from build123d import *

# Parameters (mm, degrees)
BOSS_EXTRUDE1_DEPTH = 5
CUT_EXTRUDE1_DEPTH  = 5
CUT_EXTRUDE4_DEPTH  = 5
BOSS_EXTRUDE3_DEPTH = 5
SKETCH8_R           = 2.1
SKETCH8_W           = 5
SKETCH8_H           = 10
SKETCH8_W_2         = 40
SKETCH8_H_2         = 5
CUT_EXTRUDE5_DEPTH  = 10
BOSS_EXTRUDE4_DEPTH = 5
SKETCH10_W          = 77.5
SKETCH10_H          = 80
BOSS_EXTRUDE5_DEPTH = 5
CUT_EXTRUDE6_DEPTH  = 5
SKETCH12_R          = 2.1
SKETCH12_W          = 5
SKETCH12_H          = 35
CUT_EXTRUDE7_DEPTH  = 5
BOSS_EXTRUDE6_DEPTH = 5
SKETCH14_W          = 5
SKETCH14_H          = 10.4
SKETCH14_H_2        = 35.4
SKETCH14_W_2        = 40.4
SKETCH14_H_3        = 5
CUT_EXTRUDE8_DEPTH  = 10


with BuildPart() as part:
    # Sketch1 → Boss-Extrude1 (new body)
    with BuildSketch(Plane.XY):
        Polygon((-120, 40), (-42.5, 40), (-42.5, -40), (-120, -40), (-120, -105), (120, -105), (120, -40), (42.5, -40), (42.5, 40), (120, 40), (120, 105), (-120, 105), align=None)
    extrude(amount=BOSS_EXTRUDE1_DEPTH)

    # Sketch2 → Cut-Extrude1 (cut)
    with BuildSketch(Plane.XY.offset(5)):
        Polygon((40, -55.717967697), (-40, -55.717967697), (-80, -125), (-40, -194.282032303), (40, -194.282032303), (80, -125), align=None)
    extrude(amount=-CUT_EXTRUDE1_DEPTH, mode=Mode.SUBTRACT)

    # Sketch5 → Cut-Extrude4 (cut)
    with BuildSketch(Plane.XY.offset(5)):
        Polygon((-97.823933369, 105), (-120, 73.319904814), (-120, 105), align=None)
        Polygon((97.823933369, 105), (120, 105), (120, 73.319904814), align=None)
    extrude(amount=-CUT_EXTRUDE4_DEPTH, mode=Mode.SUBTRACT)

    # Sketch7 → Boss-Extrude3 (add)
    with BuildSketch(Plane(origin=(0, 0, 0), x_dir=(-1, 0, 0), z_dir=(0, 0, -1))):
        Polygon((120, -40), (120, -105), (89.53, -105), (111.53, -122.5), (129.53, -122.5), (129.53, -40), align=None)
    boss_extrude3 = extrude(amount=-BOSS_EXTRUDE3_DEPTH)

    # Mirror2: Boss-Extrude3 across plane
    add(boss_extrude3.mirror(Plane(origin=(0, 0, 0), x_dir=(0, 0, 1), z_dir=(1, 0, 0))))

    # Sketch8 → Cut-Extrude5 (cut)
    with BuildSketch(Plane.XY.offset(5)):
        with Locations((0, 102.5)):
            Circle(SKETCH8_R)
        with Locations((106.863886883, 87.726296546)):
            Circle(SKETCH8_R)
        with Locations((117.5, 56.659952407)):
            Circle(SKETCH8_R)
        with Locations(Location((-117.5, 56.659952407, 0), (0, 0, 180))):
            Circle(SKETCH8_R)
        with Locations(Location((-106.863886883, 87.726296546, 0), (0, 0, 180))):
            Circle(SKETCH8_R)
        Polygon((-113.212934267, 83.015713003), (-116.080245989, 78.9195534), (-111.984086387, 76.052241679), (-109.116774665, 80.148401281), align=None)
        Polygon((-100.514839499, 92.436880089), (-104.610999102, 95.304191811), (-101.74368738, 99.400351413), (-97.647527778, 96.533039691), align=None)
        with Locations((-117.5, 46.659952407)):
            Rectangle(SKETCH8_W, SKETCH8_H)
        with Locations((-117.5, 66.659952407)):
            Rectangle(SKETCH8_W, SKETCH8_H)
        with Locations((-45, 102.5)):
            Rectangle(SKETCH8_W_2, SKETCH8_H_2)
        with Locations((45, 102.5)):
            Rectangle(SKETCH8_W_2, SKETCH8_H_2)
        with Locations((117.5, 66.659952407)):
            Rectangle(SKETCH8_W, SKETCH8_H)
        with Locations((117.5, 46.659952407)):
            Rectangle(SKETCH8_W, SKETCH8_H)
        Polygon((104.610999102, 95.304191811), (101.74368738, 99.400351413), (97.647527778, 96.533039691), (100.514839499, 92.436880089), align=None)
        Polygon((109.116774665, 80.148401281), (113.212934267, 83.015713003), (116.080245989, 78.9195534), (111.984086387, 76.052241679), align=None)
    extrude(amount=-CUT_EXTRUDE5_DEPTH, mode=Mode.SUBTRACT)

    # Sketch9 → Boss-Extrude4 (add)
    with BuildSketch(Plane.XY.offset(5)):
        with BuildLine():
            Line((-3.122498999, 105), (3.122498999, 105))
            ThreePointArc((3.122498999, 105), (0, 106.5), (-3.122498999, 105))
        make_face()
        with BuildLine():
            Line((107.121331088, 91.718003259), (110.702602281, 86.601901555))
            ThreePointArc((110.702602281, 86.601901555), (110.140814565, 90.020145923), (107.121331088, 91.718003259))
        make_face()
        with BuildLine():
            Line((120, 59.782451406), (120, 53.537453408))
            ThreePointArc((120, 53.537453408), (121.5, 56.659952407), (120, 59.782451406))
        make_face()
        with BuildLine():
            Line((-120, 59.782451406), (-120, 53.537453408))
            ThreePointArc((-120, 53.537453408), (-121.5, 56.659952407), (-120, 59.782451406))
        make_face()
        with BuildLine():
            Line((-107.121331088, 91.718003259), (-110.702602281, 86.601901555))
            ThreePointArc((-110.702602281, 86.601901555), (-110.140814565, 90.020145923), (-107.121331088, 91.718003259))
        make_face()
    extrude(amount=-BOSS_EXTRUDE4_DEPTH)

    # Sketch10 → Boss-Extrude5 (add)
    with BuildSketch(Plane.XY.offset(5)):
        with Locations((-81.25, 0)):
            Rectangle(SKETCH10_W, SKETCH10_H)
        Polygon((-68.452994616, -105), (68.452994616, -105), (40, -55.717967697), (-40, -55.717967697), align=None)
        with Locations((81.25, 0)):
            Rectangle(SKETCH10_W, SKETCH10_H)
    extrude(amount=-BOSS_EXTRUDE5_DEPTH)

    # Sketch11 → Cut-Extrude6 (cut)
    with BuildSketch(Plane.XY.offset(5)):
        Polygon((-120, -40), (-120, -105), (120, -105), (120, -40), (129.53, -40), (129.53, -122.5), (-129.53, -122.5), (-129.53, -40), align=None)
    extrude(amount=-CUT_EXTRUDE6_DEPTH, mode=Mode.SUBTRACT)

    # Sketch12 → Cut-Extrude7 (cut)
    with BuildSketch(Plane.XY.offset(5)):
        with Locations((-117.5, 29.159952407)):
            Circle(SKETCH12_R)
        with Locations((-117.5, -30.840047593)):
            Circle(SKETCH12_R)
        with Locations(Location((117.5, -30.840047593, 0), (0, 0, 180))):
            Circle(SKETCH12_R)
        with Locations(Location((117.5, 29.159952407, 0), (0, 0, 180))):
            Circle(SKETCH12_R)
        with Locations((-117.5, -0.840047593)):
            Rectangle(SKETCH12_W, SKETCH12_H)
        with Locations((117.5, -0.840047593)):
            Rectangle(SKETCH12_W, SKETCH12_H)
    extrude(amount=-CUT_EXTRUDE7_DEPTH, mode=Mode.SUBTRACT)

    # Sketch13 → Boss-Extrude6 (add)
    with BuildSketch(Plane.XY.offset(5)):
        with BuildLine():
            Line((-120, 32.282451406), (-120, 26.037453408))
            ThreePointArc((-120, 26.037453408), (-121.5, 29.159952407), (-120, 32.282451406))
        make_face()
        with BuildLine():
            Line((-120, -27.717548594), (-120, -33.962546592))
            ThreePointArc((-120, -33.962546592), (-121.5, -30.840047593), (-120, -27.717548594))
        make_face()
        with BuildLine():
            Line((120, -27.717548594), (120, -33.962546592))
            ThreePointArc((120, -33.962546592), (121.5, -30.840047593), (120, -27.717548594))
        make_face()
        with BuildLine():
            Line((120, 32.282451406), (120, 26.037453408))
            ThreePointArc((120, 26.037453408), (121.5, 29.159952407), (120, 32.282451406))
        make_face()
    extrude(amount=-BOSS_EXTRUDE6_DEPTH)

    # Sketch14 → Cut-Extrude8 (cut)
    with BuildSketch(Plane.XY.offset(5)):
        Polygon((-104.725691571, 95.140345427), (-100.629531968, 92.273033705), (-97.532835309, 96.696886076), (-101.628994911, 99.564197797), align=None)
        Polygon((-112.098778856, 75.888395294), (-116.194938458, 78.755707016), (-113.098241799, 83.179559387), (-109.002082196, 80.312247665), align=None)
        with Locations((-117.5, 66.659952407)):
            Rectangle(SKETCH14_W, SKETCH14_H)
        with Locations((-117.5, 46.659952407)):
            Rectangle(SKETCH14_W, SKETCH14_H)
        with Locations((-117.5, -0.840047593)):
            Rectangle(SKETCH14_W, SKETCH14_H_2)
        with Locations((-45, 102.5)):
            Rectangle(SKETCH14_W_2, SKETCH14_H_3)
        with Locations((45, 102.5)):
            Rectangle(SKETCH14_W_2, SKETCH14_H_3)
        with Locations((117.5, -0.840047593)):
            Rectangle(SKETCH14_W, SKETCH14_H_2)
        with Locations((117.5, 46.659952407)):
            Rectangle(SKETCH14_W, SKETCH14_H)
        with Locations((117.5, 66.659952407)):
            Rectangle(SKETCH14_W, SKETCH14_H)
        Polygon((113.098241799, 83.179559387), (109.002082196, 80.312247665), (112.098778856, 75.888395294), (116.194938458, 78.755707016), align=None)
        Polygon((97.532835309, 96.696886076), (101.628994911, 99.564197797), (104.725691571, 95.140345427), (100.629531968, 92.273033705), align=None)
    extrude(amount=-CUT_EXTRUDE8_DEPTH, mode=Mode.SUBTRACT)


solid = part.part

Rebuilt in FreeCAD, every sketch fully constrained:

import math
import FreeCAD as App
import Part
import Sketcher
from FreeCAD import Vector
Q = App.Units.Quantity


def add_polygon(sketch, points):
    """Adds a closed chain of lines whose ends are joined by coincident constraints."""
    first, n = sketch.GeometryCount, len(points)
    for a, b in zip(points, points[1:] + points[:1]):
        sketch.addGeometry(Part.LineSegment(App.Vector(*a, 0), App.Vector(*b, 0)), False)
    for i in range(n):
        sketch.addConstraint(Sketcher.Constraint("Coincident", first + i, 2, first + (i + 1) % n, 1))

doc = App.newDocument("Part")
params = doc.addObject("Spreadsheet::Sheet", "Params")
for row, (alias, value) in enumerate([
    ("sketch1_width", "240 mm"),
    ("sketch1_height", "80 mm"),
    ("sketch1_height2", "65 mm"),
    ("sketch1_width2", "77.5 mm"),
    ("pad1_length", "5 mm"),
    ("sketch2_width", "80 mm"),
    ("sketch2_length", "80 mm"),
    ("pocket1_length", "5 mm"),
    ("pocket2_length", "5 mm"),
    ("sketch4_width", "18 mm"),
    ("sketch4_height", "65 mm"),
    ("sketch4_height2", "82.5 mm"),
    ("sketch4_width2", "30.47 mm"),
    ("pad2_length", "5 mm"),
    ("sketch5_diameter", "4.2 mm"),
    ("sketch5_width", "5 mm"),
    ("sketch5_width2", "40 mm"),
    ("sketch5_height", "10 mm"),
    ("sketch5_length", "5 mm"),
    ("pocket3_length", "10 mm"),
    ("sketch6_radius", "4 mm"),
    ("pad3_length", "5 mm"),
    ("sketch7_width", "80 mm"),
    ("sketch7_width2", "77.5 mm"),
    ("pad4_length", "5 mm"),
    ("sketch8_width", "240 mm"),
    ("sketch8_height", "65 mm"),
    ("sketch8_height2", "82.5 mm"),
    ("sketch8_width2", "9.53 mm"),
    ("pocket4_length", "5 mm"),
    ("sketch9_diameter", "4.2 mm"),
    ("sketch9_width", "5 mm"),
    ("sketch9_height", "35 mm"),
    ("pocket5_length", "5 mm"),
    ("sketch10_radius", "4 mm"),
    ("pad5_length", "5 mm"),
    ("sketch11_width", "5 mm"),
    ("sketch11_length", "5 mm"),
    ("sketch11_width2", "40.4 mm"),
    ("sketch11_height", "10.4 mm"),
    ("sketch11_height2", "35.4 mm"),
    ("pocket6_length", "10 mm"),
], start=1):
    params.set(f"A{row}", alias)
    params.set(f"B{row}", "=" + value)
    params.setAlias(f"B{row}", alias)

body = doc.addObject("PartDesign::Body", "Body")

# Sketch on XY plane
sketch1 = body.newObject("Sketcher::SketchObject", "Sketch")
sketch1.AttachmentSupport = (doc.getObject("XY_Plane"), [""])
sketch1.MapMode = "FlatFace"
add_polygon(sketch1, [(-120, 40), (-42.5, 40), (-42.5, -40), (-120, -40), (-120, -105), (120, -105), (120, -40), (42.5, -40), (42.5, 40), (120, 40), (120, 105), (-120, 105)])  # lines 0-11
sketch1.addConstraint(Sketcher.Constraint("Horizontal", 0))
sketch1.addConstraint(Sketcher.Constraint("Vertical", 1))
sketch1.addConstraint(Sketcher.Constraint("Horizontal", 2))
sketch1.addConstraint(Sketcher.Constraint("Vertical", 3))
sketch1.addConstraint(Sketcher.Constraint("Horizontal", 4))
sketch1.addConstraint(Sketcher.Constraint("Vertical", 5))
sketch1.addConstraint(Sketcher.Constraint("Horizontal", 6))
sketch1.addConstraint(Sketcher.Constraint("Vertical", 7))
sketch1.addConstraint(Sketcher.Constraint("Horizontal", 8))
sketch1.addConstraint(Sketcher.Constraint("Vertical", 9))
sketch1.addConstraint(Sketcher.Constraint("Horizontal", 10))
sketch1.addConstraint(Sketcher.Constraint("Vertical", 11))
sketch1.addConstraint(Sketcher.Constraint("Symmetric", 0, 2, 6, 2, -1, 1))
sketch1.addConstraint(Sketcher.Constraint("Symmetric", 2, 2, 8, 2, -1, 1))
sketch1.addConstraint(Sketcher.Constraint("Symmetric", 4, 2, 10, 2, -1, 1))
sketch1.addConstraint(Sketcher.Constraint("Symmetric", 2, 2, 5, 2, -2))
sketch1.addConstraint(Sketcher.Constraint("DistanceX", 4, 1, 4, 2, 240.0))
sketch1.addConstraint(Sketcher.Constraint("DistanceY", 1, 2, 1, 1, 80.0))
sketch1.addConstraint(Sketcher.Constraint("DistanceY", 3, 2, 3, 1, 65.0))
sketch1.addConstraint(Sketcher.Constraint("DistanceX", 0, 1, 0, 2, 77.5))
sketch1.setExpression("Constraints[28]", "Params.sketch1_width")
sketch1.setExpression("Constraints[29]", "Params.sketch1_height")
sketch1.setExpression("Constraints[30]", "Params.sketch1_height2")
sketch1.setExpression("Constraints[31]", "Params.sketch1_width2")
pad1 = body.newObject("PartDesign::Pad", "Pad")
pad1.Profile = sketch1
pad1.setExpression("Length", "Params.pad1_length")

# Sketch on XY plane
sketch2 = body.newObject("Sketcher::SketchObject", "Sketch001")
sketch2.AttachmentSupport = (doc.getObject("XY_Plane"), [""])
sketch2.MapMode = "FlatFace"
sketch2.AttachmentOffset = App.Placement(Vector(0, 0, 5), App.Rotation())
add_polygon(sketch2, [(40, -55.717968), (-40, -55.717968), (-80, -125), (-40, -194.282032), (40, -194.282032), (80, -125)])  # lines 0-5
sketch2.addConstraint(Sketcher.Constraint("Horizontal", 0))
sketch2.addConstraint(Sketcher.Constraint("Horizontal", 3))
sketch2.addConstraint(Sketcher.Constraint("Symmetric", 1, 2, 4, 2, -2))
sketch2.addConstraint(Sketcher.Constraint("Parallel", 1, 4))
sketch2.addConstraint(Sketcher.Constraint("Parallel", 2, 5))
sketch2.addConstraint(Sketcher.Constraint("Vertical", 0, 2, 2, 2))
sketch2.addConstraint(Sketcher.Constraint("Vertical", 3, 2, 5, 2))
sketch2.addConstraint(Sketcher.Constraint("DistanceX", 0, 2, 0, 1, 80.0))
sketch2.addConstraint(Sketcher.Constraint("Angle", 1, Q("-120 deg")))
sketch2.addConstraint(Sketcher.Constraint("Distance", 1, 80.0))
sketch2.addConstraint(Sketcher.Constraint("DistanceY", 1, 2, -1, 1, 125.0))
sketch2.setExpression("Constraints[13]", "Params.sketch2_width")
sketch2.setExpression("Constraints[15]", "Params.sketch2_length")
pocket1 = body.newObject("PartDesign::Pocket", "Pocket")
pocket1.Profile = sketch2
pocket1.setExpression("Length", "Params.pocket1_length")

# Sketch on XY plane
sketch3 = body.newObject("Sketcher::SketchObject", "Sketch002")
sketch3.AttachmentSupport = (doc.getObject("XY_Plane"), [""])
sketch3.MapMode = "FlatFace"
sketch3.AttachmentOffset = App.Placement(Vector(0, 0, 5), App.Rotation())
add_polygon(sketch3, [(-120, 73.319905), (-97.823933, 105), (-120, 105)])  # lines 0-2
add_polygon(sketch3, [(120, 105), (97.823933, 105), (120, 73.319905)])  # lines 3-5
sketch3.addConstraint(Sketcher.Constraint("Horizontal", 1))
sketch3.addConstraint(Sketcher.Constraint("Vertical", 2))
sketch3.addConstraint(Sketcher.Constraint("Horizontal", 3))
sketch3.addConstraint(Sketcher.Constraint("Vertical", 5))
sketch3.addConstraint(Sketcher.Constraint("Symmetric", 0, 2, 3, 2, -2))
sketch3.addConstraint(Sketcher.Constraint("Symmetric", 2, 2, 4, 2, -2))
sketch3.addConstraint(Sketcher.Constraint("DistanceY", -1, 1, 0, 2, 105.0))
sketch3.addConstraint(Sketcher.Constraint("DistanceX", 1, 2, -1, 1, 120.0))
sketch3.addConstraint(Sketcher.Constraint("DistanceX", 1, 2, 1, 1, 22.176067))
sketch3.addConstraint(Sketcher.Constraint("DistanceY", 2, 2, 2, 1, 31.680095))
pocket2 = body.newObject("PartDesign::Pocket", "Pocket001")
pocket2.Profile = sketch3
pocket2.setExpression("Length", "Params.pocket2_length")

# Sketch on XY plane
sketch4 = body.newObject("Sketcher::SketchObject", "Sketch003")
sketch4.AttachmentSupport = (doc.getObject("XY_Plane"), [""])
sketch4.MapMode = "FlatFace"
add_polygon(sketch4, [(-120, -40), (-120, -105), (-89.53, -105), (-111.53, -122.5), (-129.53, -122.5), (-129.53, -40)])  # lines 0-5
sketch4.addConstraint(Sketcher.Constraint("Vertical", 0))
sketch4.addConstraint(Sketcher.Constraint("Horizontal", 1))
sketch4.addConstraint(Sketcher.Constraint("Horizontal", 3))
sketch4.addConstraint(Sketcher.Constraint("Vertical", 4))
sketch4.addConstraint(Sketcher.Constraint("Horizontal", 5))
sketch4.addConstraint(Sketcher.Constraint("DistanceX", 3, 2, 3, 1, 18.0))
sketch4.addConstraint(Sketcher.Constraint("DistanceY", 0, 2, 0, 1, 65.0))
sketch4.addConstraint(Sketcher.Constraint("DistanceY", 4, 1, 4, 2, 82.5))
sketch4.addConstraint(Sketcher.Constraint("DistanceX", 0, 2, -1, 1, 120.0))
sketch4.addConstraint(Sketcher.Constraint("DistanceY", 0, 2, -1, 1, 105.0))
sketch4.addConstraint(Sketcher.Constraint("DistanceX", 2, 2, 1, 2, 22.0))
sketch4.addConstraint(Sketcher.Constraint("DistanceX", 1, 1, 1, 2, 30.47))
sketch4.setExpression("Constraints[11]", "Params.sketch4_width")
sketch4.setExpression("Constraints[12]", "Params.sketch4_height")
sketch4.setExpression("Constraints[13]", "Params.sketch4_height2")
sketch4.setExpression("Constraints[17]", "Params.sketch4_width2")
pad2 = body.newObject("PartDesign::Pad", "Pad001")
pad2.Profile = sketch4
pad2.setExpression("Length", "Params.pad2_length")
doc.recompute()

mirrored = body.newObject("PartDesign::Mirrored", "Mirrored")
mirrored.Originals = [pad2]
mirrored.MirrorPlane = (doc.getObject("YZ_Plane"), [""])
body.Tip = mirrored

# Sketch on XY plane
sketch5 = body.newObject("Sketcher::SketchObject", "Sketch004")
sketch5.AttachmentSupport = (doc.getObject("XY_Plane"), [""])
sketch5.MapMode = "FlatFace"
sketch5.AttachmentOffset = App.Placement(Vector(0, 0, 5), App.Rotation())
sketch5.addGeometry(Part.Circle(Vector(0, 102.5, 0), Vector(0, 0, 1), 2.1), False)  # 0
sketch5.addGeometry(Part.Circle(Vector(106.863887, 87.726297, 0), Vector(0, 0, 1), 2.1), False)  # 1
sketch5.addGeometry(Part.Circle(Vector(117.5, 56.659952, 0), Vector(0, 0, 1), 2.1), False)  # 2
sketch5.addGeometry(Part.Circle(Vector(-117.5, 56.659952, 0), Vector(0, 0, 1), 2.1), False)  # 3
sketch5.addGeometry(Part.Circle(Vector(-106.863887, 87.726297, 0), Vector(0, 0, 1), 2.1), False)  # 4
add_polygon(sketch5, [(-113.212934, 83.015713), (-116.080246, 78.919553), (-111.984086, 76.052242), (-109.116775, 80.148401)])  # lines 5-8
add_polygon(sketch5, [(-104.610999, 95.304192), (-100.514839, 92.43688), (-97.647528, 96.53304), (-101.743687, 99.400351)])  # lines 9-12
add_polygon(sketch5, [(-120, 51.659952), (-120, 41.659952), (-115, 41.659952), (-115, 51.659952)])  # lines 13-16
add_polygon(sketch5, [(-120, 71.659952), (-120, 61.659952), (-115, 61.659952), (-115, 71.659952)])  # lines 17-20
add_polygon(sketch5, [(-65, 105), (-65, 100), (-25, 100), (-25, 105)])  # lines 21-24
add_polygon(sketch5, [(25, 105), (25, 100), (65, 100), (65, 105)])  # lines 25-28
add_polygon(sketch5, [(115, 71.659952), (115, 61.659952), (120, 61.659952), (120, 71.659952)])  # lines 29-32
add_polygon(sketch5, [(115, 51.659952), (115, 41.659952), (120, 41.659952), (120, 51.659952)])  # lines 33-36
add_polygon(sketch5, [(104.610999, 95.304192), (101.743687, 99.400351), (97.647528, 96.53304), (100.514839, 92.43688)])  # lines 37-40
add_polygon(sketch5, [(113.212934, 83.015713), (109.116775, 80.148401), (111.984086, 76.052242), (116.080246, 78.919553)])  # lines 41-44
sketch5.addConstraint(Sketcher.Constraint("Vertical", 13))
sketch5.addConstraint(Sketcher.Constraint("Horizontal", 14))
sketch5.addConstraint(Sketcher.Constraint("Vertical", 15))
sketch5.addConstraint(Sketcher.Constraint("Horizontal", 16))
sketch5.addConstraint(Sketcher.Constraint("Vertical", 17))
sketch5.addConstraint(Sketcher.Constraint("Horizontal", 18))
sketch5.addConstraint(Sketcher.Constraint("Vertical", 19))
sketch5.addConstraint(Sketcher.Constraint("Horizontal", 20))
sketch5.addConstraint(Sketcher.Constraint("Vertical", 21))
sketch5.addConstraint(Sketcher.Constraint("Horizontal", 22))
sketch5.addConstraint(Sketcher.Constraint("Vertical", 23))
sketch5.addConstraint(Sketcher.Constraint("Horizontal", 24))
sketch5.addConstraint(Sketcher.Constraint("Vertical", 25))
sketch5.addConstraint(Sketcher.Constraint("Horizontal", 26))
sketch5.addConstraint(Sketcher.Constraint("Vertical", 27))
sketch5.addConstraint(Sketcher.Constraint("Horizontal", 28))
sketch5.addConstraint(Sketcher.Constraint("Vertical", 29))
sketch5.addConstraint(Sketcher.Constraint("Horizontal", 30))
sketch5.addConstraint(Sketcher.Constraint("Vertical", 31))
sketch5.addConstraint(Sketcher.Constraint("Horizontal", 32))
sketch5.addConstraint(Sketcher.Constraint("Vertical", 33))
sketch5.addConstraint(Sketcher.Constraint("Horizontal", 34))
sketch5.addConstraint(Sketcher.Constraint("Vertical", 35))
sketch5.addConstraint(Sketcher.Constraint("Horizontal", 36))
sketch5.addConstraint(Sketcher.Constraint("Equal", 0, 1))
sketch5.addConstraint(Sketcher.Constraint("Equal", 1, 2))
sketch5.addConstraint(Sketcher.Constraint("Equal", 2, 3))
sketch5.addConstraint(Sketcher.Constraint("Equal", 3, 4))
sketch5.addConstraint(Sketcher.Constraint("Symmetric", 2, 3, 3, 3, -2))
sketch5.addConstraint(Sketcher.Constraint("Symmetric", 1, 3, 4, 3, -2))
sketch5.addConstraint(Sketcher.Constraint("Symmetric", 22, 2, 25, 2, -2))
sketch5.addConstraint(Sketcher.Constraint("Symmetric", 24, 2, 27, 2, -2))
sketch5.addConstraint(Sketcher.Constraint("Symmetric", 18, 2, 29, 2, -2))
sketch5.addConstraint(Sketcher.Constraint("Symmetric", 20, 2, 31, 2, -2))
sketch5.addConstraint(Sketcher.Constraint("Symmetric", 14, 2, 33, 2, -2))
sketch5.addConstraint(Sketcher.Constraint("Symmetric", 16, 2, 35, 2, -2))
sketch5.addConstraint(Sketcher.Constraint("Symmetric", 11, 2, 37, 2, -2))
sketch5.addConstraint(Sketcher.Constraint("Symmetric", 10, 2, 38, 2, -2))
sketch5.addConstraint(Sketcher.Constraint("Symmetric", 9, 2, 39, 2, -2))
sketch5.addConstraint(Sketcher.Constraint("Symmetric", 12, 2, 40, 2, -2))
sketch5.addConstraint(Sketcher.Constraint("Symmetric", 7, 2, 41, 2, -2))
sketch5.addConstraint(Sketcher.Constraint("Symmetric", 6, 2, 42, 2, -2))
sketch5.addConstraint(Sketcher.Constraint("Symmetric", 5, 2, 43, 2, -2))
sketch5.addConstraint(Sketcher.Constraint("Symmetric", 8, 2, 44, 2, -2))
sketch5.addConstraint(Sketcher.Constraint("PointOnObject", 0, 3, -2))
sketch5.addConstraint(Sketcher.Constraint("Perpendicular", 5, 6))
sketch5.addConstraint(Sketcher.Constraint("Perpendicular", 6, 7))
sketch5.addConstraint(Sketcher.Constraint("Perpendicular", 7, 8))
sketch5.addConstraint(Sketcher.Constraint("Parallel", 8, 9))
sketch5.addConstraint(Sketcher.Constraint("Perpendicular", 9, 10))
sketch5.addConstraint(Sketcher.Constraint("Perpendicular", 10, 11))
sketch5.addConstraint(Sketcher.Constraint("Perpendicular", 11, 12))
sketch5.addConstraint(Sketcher.Constraint("Vertical", 16, 2, 17, 2))
sketch5.addConstraint(Sketcher.Constraint("Vertical", 15, 2, 18, 2))
sketch5.addConstraint(Sketcher.Constraint("Equal", 15, 17))
sketch5.addConstraint(Sketcher.Constraint("Equal", 36, 21))
sketch5.addConstraint(Sketcher.Constraint("Equal", 5, 6))
sketch5.addConstraint(Sketcher.Constraint("Equal", 8, 9))
sketch5.addConstraint(Sketcher.Constraint("Equal", 9, 10))
sketch5.addConstraint(Sketcher.Constraint("Diameter", 0, 4.2))
sketch5.addConstraint(Sketcher.Constraint("DistanceX", 14, 1, 14, 2, 5.0))
sketch5.addConstraint(Sketcher.Constraint("DistanceX", 22, 1, 22, 2, 40.0))
sketch5.addConstraint(Sketcher.Constraint("DistanceY", 13, 2, 13, 1, 10.0))
sketch5.addConstraint(Sketcher.Constraint("Distance", 5, 5.0))
sketch5.addConstraint(Sketcher.Constraint("DistanceX", 13, 2, -1, 1, 120.0))
sketch5.addConstraint(Sketcher.Constraint("DistanceX", 21, 2, -1, 1, 65.0))
sketch5.addConstraint(Sketcher.Constraint("DistanceY", -1, 1, 21, 2, 100.0))
sketch5.addConstraint(Sketcher.Constraint("DistanceX", 3, 3, 2, 3, 235.0))
sketch5.addConstraint(Sketcher.Constraint("DistanceY", 13, 2, 3, 3, 15.0))
sketch5.addConstraint(Sketcher.Constraint("DistanceY", 3, 3, 17, 2, 5.0))
sketch5.addConstraint(Sketcher.Constraint("DistanceY", -1, 1, 0, 3, 102.5))
sketch5.addConstraint(Sketcher.Constraint("DistanceX", 12, 2, -1, 1, 104.610999))
sketch5.addConstraint(Sketcher.Constraint("DistanceY", -1, 1, 7, 2, 80.148401))
sketch5.addConstraint(Sketcher.Constraint("DistanceY", 3, 3, 5, 2, 22.259601))
sketch5.addConstraint(Sketcher.Constraint("DistanceX", 6, 2, 4, 3, 5.1202))
sketch5.addConstraint(Sketcher.Constraint("DistanceY", 6, 2, 10, 2, 20.480798))
sketch5.addConstraint(Sketcher.Constraint("DistanceX", 4, 3, 11, 2, 5.1202))
sketch5.addConstraint(Sketcher.Constraint("DistanceY", -1, 1, 6, 2, 76.052242))
sketch5.addConstraint(Sketcher.Constraint("DistanceY", -1, 1, 1, 3, 87.726297))
sketch5.setExpression("Constraints[99]", "Params.sketch5_diameter")
sketch5.setExpression("Constraints[100]", "Params.sketch5_width")
sketch5.setExpression("Constraints[101]", "Params.sketch5_width2")
sketch5.setExpression("Constraints[102]", "Params.sketch5_height")
sketch5.setExpression("Constraints[103]", "Params.sketch5_length")
pocket3 = body.newObject("PartDesign::Pocket", "Pocket002")
pocket3.Profile = sketch5
pocket3.setExpression("Length", "Params.pocket3_length")

# Sketch on XY plane
sketch6 = body.newObject("Sketcher::SketchObject", "Sketch005")
sketch6.AttachmentSupport = (doc.getObject("XY_Plane"), [""])
sketch6.MapMode = "FlatFace"
sketch6.AttachmentOffset = App.Placement(Vector(0, 0, 5), App.Rotation())
sketch6.addGeometry(Part.LineSegment(Vector(-3.122499, 105, 0), Vector(3.122499, 105, 0)), False)
sketch6.addGeometry(Part.ArcOfCircle(Part.Circle(Vector(0, 102.5, 0), Vector(0, 0, 1), 4), math.radians(38.682187), math.radians(141.317813)), False)
sketch6.addGeometry(Part.LineSegment(Vector(107.121331, 91.718003, 0), Vector(110.702602, 86.601902, 0)), False)
sketch6.addGeometry(Part.ArcOfCircle(Part.Circle(Vector(106.863887, 87.726297, 0), Vector(0, 0, 1), 4), math.radians(-16.325792), math.radians(86.309833)), False)
sketch6.addGeometry(Part.LineSegment(Vector(120, 59.782451, 0), Vector(120, 53.537453, 0)), False)
sketch6.addGeometry(Part.ArcOfCircle(Part.Circle(Vector(117.5, 56.659952, 0), Vector(0, 0, 1), 4), math.radians(-51.317813), math.radians(51.317813)), False)
sketch6.addGeometry(Part.LineSegment(Vector(-120, 53.537453, 0), Vector(-120, 59.782451, 0)), False)
sketch6.addGeometry(Part.ArcOfCircle(Part.Circle(Vector(-117.5, 56.659952, 0), Vector(0, 0, 1), 4), math.radians(128.682187), math.radians(231.317813)), False)
sketch6.addGeometry(Part.LineSegment(Vector(-110.702602, 86.601902, 0), Vector(-107.121331, 91.718003, 0)), False)
sketch6.addGeometry(Part.ArcOfCircle(Part.Circle(Vector(-106.863887, 87.726297, 0), Vector(0, 0, 1), 4), math.radians(93.690167), math.radians(196.325792)), False)
sketch6.addConstraint(Sketcher.Constraint("Coincident", 0, 1, 1, 2))
sketch6.addConstraint(Sketcher.Constraint("Coincident", 1, 1, 0, 2))
sketch6.addConstraint(Sketcher.Constraint("Coincident", 2, 1, 3, 2))
sketch6.addConstraint(Sketcher.Constraint("Coincident", 3, 1, 2, 2))
sketch6.addConstraint(Sketcher.Constraint("Coincident", 4, 1, 5, 2))
sketch6.addConstraint(Sketcher.Constraint("Coincident", 5, 1, 4, 2))
sketch6.addConstraint(Sketcher.Constraint("Coincident", 6, 1, 7, 2))
sketch6.addConstraint(Sketcher.Constraint("Coincident", 7, 1, 6, 2))
sketch6.addConstraint(Sketcher.Constraint("Coincident", 8, 1, 9, 2))
sketch6.addConstraint(Sketcher.Constraint("Coincident", 9, 1, 8, 2))
sketch6.addConstraint(Sketcher.Constraint("Horizontal", 0))
sketch6.addConstraint(Sketcher.Constraint("Vertical", 4))
sketch6.addConstraint(Sketcher.Constraint("Vertical", 6))
sketch6.addConstraint(Sketcher.Constraint("Equal", 1, 3))
sketch6.addConstraint(Sketcher.Constraint("Equal", 3, 5))
sketch6.addConstraint(Sketcher.Constraint("Equal", 5, 7))
sketch6.addConstraint(Sketcher.Constraint("Equal", 7, 9))
sketch6.addConstraint(Sketcher.Constraint("Symmetric", 5, 3, 7, 3, -2))
sketch6.addConstraint(Sketcher.Constraint("Symmetric", 3, 3, 9, 3, -2))
sketch6.addConstraint(Sketcher.Constraint("PointOnObject", 1, 3, -2))
sketch6.addConstraint(Sketcher.Constraint("Horizontal", 5, 1, 6, 1))
sketch6.addConstraint(Sketcher.Constraint("Horizontal", 3, 1, 8, 1))
sketch6.addConstraint(Sketcher.Constraint("Horizontal", 2, 1, 9, 1))
sketch6.addConstraint(Sketcher.Constraint("Equal", 0, 4))
sketch6.addConstraint(Sketcher.Constraint("Radius", 1, 4.0))
sketch6.addConstraint(Sketcher.Constraint("DistanceY", -1, 1, 0, 1, 105.0))
sketch6.addConstraint(Sketcher.Constraint("DistanceX", -1, 1, 4, 1, 120.0))
sketch6.addConstraint(Sketcher.Constraint("DistanceX", 7, 3, 5, 3, 235.0))
sketch6.addConstraint(Sketcher.Constraint("DistanceY", -1, 1, 3, 1, 86.601902))
sketch6.addConstraint(Sketcher.Constraint("DistanceY", 3, 1, 2, 1, 5.116102))
sketch6.addConstraint(Sketcher.Constraint("DistanceX", -1, 1, 2, 1, 107.121331))
sketch6.addConstraint(Sketcher.Constraint("DistanceY", -1, 1, 4, 1, 59.782451))
sketch6.addConstraint(Sketcher.Constraint("DistanceX", 2, 1, 3, 1, 3.581271))
sketch6.setExpression("Constraints[24]", "Params.sketch6_radius")
pad3 = body.newObject("PartDesign::Pad", "Pad002")
pad3.Profile = sketch6
pad3.setExpression("Length", "Params.pad3_length")
pad3.Reversed = True

# Sketch on XY plane
sketch7 = body.newObject("Sketcher::SketchObject", "Sketch006")
sketch7.AttachmentSupport = (doc.getObject("XY_Plane"), [""])
sketch7.MapMode = "FlatFace"
sketch7.AttachmentOffset = App.Placement(Vector(0, 0, 5), App.Rotation())
add_polygon(sketch7, [(-120, 40), (-120, -40), (-42.5, -40), (-42.5, 40)])  # lines 0-3
add_polygon(sketch7, [(-68.452995, -105), (68.452995, -105), (40, -55.717968), (-40, -55.717968)])  # lines 4-7
add_polygon(sketch7, [(42.5, 40), (42.5, -40), (120, -40), (120, 40)])  # lines 8-11
sketch7.addConstraint(Sketcher.Constraint("Vertical", 0))
sketch7.addConstraint(Sketcher.Constraint("Horizontal", 1))
sketch7.addConstraint(Sketcher.Constraint("Vertical", 2))
sketch7.addConstraint(Sketcher.Constraint("Horizontal", 3))
sketch7.addConstraint(Sketcher.Constraint("Horizontal", 4))
sketch7.addConstraint(Sketcher.Constraint("Horizontal", 6))
sketch7.addConstraint(Sketcher.Constraint("Vertical", 8))
sketch7.addConstraint(Sketcher.Constraint("Horizontal", 9))
sketch7.addConstraint(Sketcher.Constraint("Vertical", 10))
sketch7.addConstraint(Sketcher.Constraint("Horizontal", 11))
sketch7.addConstraint(Sketcher.Constraint("Symmetric", 2, 2, 8, 2, -1, 1))
sketch7.addConstraint(Sketcher.Constraint("Symmetric", 0, 2, 10, 2, -1, 1))
sketch7.addConstraint(Sketcher.Constraint("Horizontal", 1, 2, 8, 2))
sketch7.addConstraint(Sketcher.Constraint("Equal", 6, 0))
sketch7.addConstraint(Sketcher.Constraint("Equal", 5, 7))
sketch7.addConstraint(Sketcher.Constraint("DistanceX", 6, 2, 6, 1, 80.0))
sketch7.addConstraint(Sketcher.Constraint("Angle", 5, Q("120 deg")))
sketch7.addConstraint(Sketcher.Constraint("DistanceX", 1, 1, 1, 2, 77.5))
sketch7.addConstraint(Sketcher.Constraint("DistanceX", 0, 2, -1, 1, 120.0))
sketch7.addConstraint(Sketcher.Constraint("DistanceY", 4, 2, -1, 1, 105.0))
sketch7.addConstraint(Sketcher.Constraint("DistanceX", -1, 1, 5, 2, 40.0))
sketch7.addConstraint(Sketcher.Constraint("DistanceX", 4, 1, 4, 2, 136.905989))
sketch7.setExpression("Constraints[27]", "Params.sketch7_width")
sketch7.setExpression("Constraints[29]", "Params.sketch7_width2")
pad4 = body.newObject("PartDesign::Pad", "Pad003")
pad4.Profile = sketch7
pad4.setExpression("Length", "Params.pad4_length")
pad4.Reversed = True

# Sketch on XY plane
sketch8 = body.newObject("Sketcher::SketchObject", "Sketch007")
sketch8.AttachmentSupport = (doc.getObject("XY_Plane"), [""])
sketch8.MapMode = "FlatFace"
sketch8.AttachmentOffset = App.Placement(Vector(0, 0, 5), App.Rotation())
add_polygon(sketch8, [(-120, -105), (-120, -40), (-129.53, -40), (-129.53, -122.5), (129.53, -122.5), (129.53, -40), (120, -40), (120, -105)])  # lines 0-7
sketch8.addConstraint(Sketcher.Constraint("Vertical", 0))
sketch8.addConstraint(Sketcher.Constraint("Horizontal", 1))
sketch8.addConstraint(Sketcher.Constraint("Vertical", 2))
sketch8.addConstraint(Sketcher.Constraint("Horizontal", 3))
sketch8.addConstraint(Sketcher.Constraint("Vertical", 4))
sketch8.addConstraint(Sketcher.Constraint("Horizontal", 5))
sketch8.addConstraint(Sketcher.Constraint("Vertical", 6))
sketch8.addConstraint(Sketcher.Constraint("Horizontal", 7))
sketch8.addConstraint(Sketcher.Constraint("Symmetric", 1, 2, 4, 2, -2))
sketch8.addConstraint(Sketcher.Constraint("Equal", 1, 5))
sketch8.addConstraint(Sketcher.Constraint("DistanceX", 7, 2, 7, 1, 240.0))
sketch8.addConstraint(Sketcher.Constraint("DistanceY", 0, 1, 0, 2, 65.0))
sketch8.addConstraint(Sketcher.Constraint("DistanceY", 2, 2, 2, 1, 82.5))
sketch8.addConstraint(Sketcher.Constraint("DistanceY", 0, 2, -1, 1, 40.0))
sketch8.addConstraint(Sketcher.Constraint("DistanceX", 1, 2, 1, 1, 9.53))
sketch8.setExpression("Constraints[18]", "Params.sketch8_width")
sketch8.setExpression("Constraints[19]", "Params.sketch8_height")
sketch8.setExpression("Constraints[20]", "Params.sketch8_height2")
sketch8.setExpression("Constraints[22]", "Params.sketch8_width2")
pocket4 = body.newObject("PartDesign::Pocket", "Pocket003")
pocket4.Profile = sketch8
pocket4.setExpression("Length", "Params.pocket4_length")

# Sketch on XY plane
sketch9 = body.newObject("Sketcher::SketchObject", "Sketch008")
sketch9.AttachmentSupport = (doc.getObject("XY_Plane"), [""])
sketch9.MapMode = "FlatFace"
sketch9.AttachmentOffset = App.Placement(Vector(0, 0, 5), App.Rotation())
sketch9.addGeometry(Part.Circle(Vector(-117.5, 29.159952, 0), Vector(0, 0, 1), 2.1), False)  # 0
sketch9.addGeometry(Part.Circle(Vector(-117.5, -30.840048, 0), Vector(0, 0, 1), 2.1), False)  # 1
sketch9.addGeometry(Part.Circle(Vector(117.5, -30.840048, 0), Vector(0, 0, 1), 2.1), False)  # 2
sketch9.addGeometry(Part.Circle(Vector(117.5, 29.159952, 0), Vector(0, 0, 1), 2.1), False)  # 3
add_polygon(sketch9, [(-120, 16.659952), (-120, -18.340048), (-115, -18.340048), (-115, 16.659952)])  # lines 4-7
add_polygon(sketch9, [(115, 16.659952), (115, -18.340048), (120, -18.340048), (120, 16.659952)])  # lines 8-11
sketch9.addConstraint(Sketcher.Constraint("Vertical", 4))
sketch9.addConstraint(Sketcher.Constraint("Horizontal", 5))
sketch9.addConstraint(Sketcher.Constraint("Vertical", 6))
sketch9.addConstraint(Sketcher.Constraint("Horizontal", 7))
sketch9.addConstraint(Sketcher.Constraint("Vertical", 8))
sketch9.addConstraint(Sketcher.Constraint("Horizontal", 9))
sketch9.addConstraint(Sketcher.Constraint("Vertical", 10))
sketch9.addConstraint(Sketcher.Constraint("Horizontal", 11))
sketch9.addConstraint(Sketcher.Constraint("Equal", 0, 1))
sketch9.addConstraint(Sketcher.Constraint("Equal", 1, 2))
sketch9.addConstraint(Sketcher.Constraint("Equal", 2, 3))
sketch9.addConstraint(Sketcher.Constraint("Symmetric", 1, 3, 2, 3, -2))
sketch9.addConstraint(Sketcher.Constraint("Symmetric", 0, 3, 3, 3, -2))
sketch9.addConstraint(Sketcher.Constraint("Symmetric", 5, 2, 8, 2, -2))
sketch9.addConstraint(Sketcher.Constraint("Symmetric", 7, 2, 10, 2, -2))
sketch9.addConstraint(Sketcher.Constraint("Vertical", 0, 3, 1, 3))
sketch9.addConstraint(Sketcher.Constraint("Diameter", 0, 4.2))
sketch9.addConstraint(Sketcher.Constraint("DistanceX", 5, 1, 5, 2, 5.0))
sketch9.addConstraint(Sketcher.Constraint("DistanceY", 4, 2, 4, 1, 35.0))
sketch9.addConstraint(Sketcher.Constraint("DistanceX", 4, 2, -1, 1, 120.0))
sketch9.addConstraint(Sketcher.Constraint("DistanceY", 1, 3, 0, 3, 60.0))
sketch9.addConstraint(Sketcher.Constraint("DistanceX", 1, 3, 2, 3, 235.0))
sketch9.addConstraint(Sketcher.Constraint("DistanceY", 1, 3, 4, 2, 12.5))
sketch9.addConstraint(Sketcher.Constraint("DistanceY", -1, 1, 0, 3, 29.159952))
sketch9.setExpression("Constraints[24]", "Params.sketch9_diameter")
sketch9.setExpression("Constraints[25]", "Params.sketch9_width")
sketch9.setExpression("Constraints[26]", "Params.sketch9_height")
pocket5 = body.newObject("PartDesign::Pocket", "Pocket004")
pocket5.Profile = sketch9
pocket5.setExpression("Length", "Params.pocket5_length")

# Sketch on XY plane
sketch10 = body.newObject("Sketcher::SketchObject", "Sketch009")
sketch10.AttachmentSupport = (doc.getObject("XY_Plane"), [""])
sketch10.MapMode = "FlatFace"
sketch10.AttachmentOffset = App.Placement(Vector(0, 0, 5), App.Rotation())
sketch10.addGeometry(Part.LineSegment(Vector(-120, 26.037453, 0), Vector(-120, 32.282451, 0)), False)
sketch10.addGeometry(Part.ArcOfCircle(Part.Circle(Vector(-117.5, 29.159952, 0), Vector(0, 0, 1), 4), math.radians(128.682187), math.radians(231.317813)), False)
sketch10.addGeometry(Part.LineSegment(Vector(-120, -33.962547, 0), Vector(-120, -27.717549, 0)), False)
sketch10.addGeometry(Part.ArcOfCircle(Part.Circle(Vector(-117.5, -30.840048, 0), Vector(0, 0, 1), 4), math.radians(128.682187), math.radians(231.317813)), False)
sketch10.addGeometry(Part.LineSegment(Vector(120, -27.717549, 0), Vector(120, -33.962547, 0)), False)
sketch10.addGeometry(Part.ArcOfCircle(Part.Circle(Vector(117.5, -30.840048, 0), Vector(0, 0, 1), 4), math.radians(-51.317813), math.radians(51.317813)), False)
sketch10.addGeometry(Part.LineSegment(Vector(120, 32.282451, 0), Vector(120, 26.037453, 0)), False)
sketch10.addGeometry(Part.ArcOfCircle(Part.Circle(Vector(117.5, 29.159952, 0), Vector(0, 0, 1), 4), math.radians(-51.317813), math.radians(51.317813)), False)
sketch10.addConstraint(Sketcher.Constraint("Coincident", 0, 1, 1, 2))
sketch10.addConstraint(Sketcher.Constraint("Coincident", 1, 1, 0, 2))
sketch10.addConstraint(Sketcher.Constraint("Coincident", 2, 1, 3, 2))
sketch10.addConstraint(Sketcher.Constraint("Coincident", 3, 1, 2, 2))
sketch10.addConstraint(Sketcher.Constraint("Coincident", 4, 1, 5, 2))
sketch10.addConstraint(Sketcher.Constraint("Coincident", 5, 1, 4, 2))
sketch10.addConstraint(Sketcher.Constraint("Coincident", 6, 1, 7, 2))
sketch10.addConstraint(Sketcher.Constraint("Coincident", 7, 1, 6, 2))
sketch10.addConstraint(Sketcher.Constraint("Vertical", 0))
sketch10.addConstraint(Sketcher.Constraint("Vertical", 2))
sketch10.addConstraint(Sketcher.Constraint("Vertical", 4))
sketch10.addConstraint(Sketcher.Constraint("Vertical", 6))
sketch10.addConstraint(Sketcher.Constraint("Equal", 1, 3))
sketch10.addConstraint(Sketcher.Constraint("Equal", 3, 5))
sketch10.addConstraint(Sketcher.Constraint("Equal", 5, 7))
sketch10.addConstraint(Sketcher.Constraint("Symmetric", 3, 3, 5, 3, -2))
sketch10.addConstraint(Sketcher.Constraint("Symmetric", 1, 3, 7, 3, -2))
sketch10.addConstraint(Sketcher.Constraint("Horizontal", 3, 1, 4, 1))
sketch10.addConstraint(Sketcher.Constraint("Horizontal", 1, 1, 6, 1))
sketch10.addConstraint(Sketcher.Constraint("Vertical", 1, 3, 3, 3))
sketch10.addConstraint(Sketcher.Constraint("Vertical", 1, 1, 2, 1))
sketch10.addConstraint(Sketcher.Constraint("Radius", 1, 4.0))
sketch10.addConstraint(Sketcher.Constraint("DistanceX", 0, 1, -1, 1, 120.0))
sketch10.addConstraint(Sketcher.Constraint("DistanceY", 3, 3, 1, 3, 60.0))
sketch10.addConstraint(Sketcher.Constraint("DistanceX", 3, 3, 5, 3, 235.0))
sketch10.addConstraint(Sketcher.Constraint("DistanceY", -1, 1, 1, 1, 32.282451))
sketch10.setExpression("Constraints[21]", "Params.sketch10_radius")
pad5 = body.newObject("PartDesign::Pad", "Pad004")
pad5.Profile = sketch10
pad5.setExpression("Length", "Params.pad5_length")
pad5.Reversed = True

# Sketch on XY plane
sketch11 = body.newObject("Sketcher::SketchObject", "Sketch010")
sketch11.AttachmentSupport = (doc.getObject("XY_Plane"), [""])
sketch11.MapMode = "FlatFace"
sketch11.AttachmentOffset = App.Placement(Vector(0, 0, 5), App.Rotation())
add_polygon(sketch11, [(-104.725692, 95.140345), (-100.629532, 92.273034), (-97.532835, 96.696886), (-101.628995, 99.564198)])  # lines 0-3
add_polygon(sketch11, [(-116.194938, 78.755707), (-112.098779, 75.888395), (-109.002082, 80.312248), (-113.098242, 83.179559)])  # lines 4-7
add_polygon(sketch11, [(-120, 71.859952), (-120, 61.459952), (-115, 61.459952), (-115, 71.859952)])  # lines 8-11
add_polygon(sketch11, [(-120, 51.859952), (-120, 41.459952), (-115, 41.459952), (-115, 51.859952)])  # lines 12-15
add_polygon(sketch11, [(-120, 16.859952), (-120, -18.540048), (-115, -18.540048), (-115, 16.859952)])  # lines 16-19
add_polygon(sketch11, [(-65.2, 105), (-65.2, 100), (-24.8, 100), (-24.8, 105)])  # lines 20-23
add_polygon(sketch11, [(24.8, 105), (24.8, 100), (65.2, 100), (65.2, 105)])  # lines 24-27
add_polygon(sketch11, [(115, 16.859952), (115, -18.540048), (120, -18.540048), (120, 16.859952)])  # lines 28-31
add_polygon(sketch11, [(115, 51.859952), (115, 41.459952), (120, 41.459952), (120, 51.859952)])  # lines 32-35
add_polygon(sketch11, [(115, 71.859952), (115, 61.459952), (120, 61.459952), (120, 71.859952)])  # lines 36-39
add_polygon(sketch11, [(113.098242, 83.179559), (109.002082, 80.312248), (112.098779, 75.888395), (116.194938, 78.755707)])  # lines 40-43
add_polygon(sketch11, [(101.628995, 99.564198), (97.532835, 96.696886), (100.629532, 92.273034), (104.725692, 95.140345)])  # lines 44-47
sketch11.addConstraint(Sketcher.Constraint("Vertical", 8))
sketch11.addConstraint(Sketcher.Constraint("Horizontal", 9))
sketch11.addConstraint(Sketcher.Constraint("Vertical", 10))
sketch11.addConstraint(Sketcher.Constraint("Horizontal", 11))
sketch11.addConstraint(Sketcher.Constraint("Vertical", 12))
sketch11.addConstraint(Sketcher.Constraint("Horizontal", 13))
sketch11.addConstraint(Sketcher.Constraint("Vertical", 14))
sketch11.addConstraint(Sketcher.Constraint("Horizontal", 15))
sketch11.addConstraint(Sketcher.Constraint("Vertical", 16))
sketch11.addConstraint(Sketcher.Constraint("Horizontal", 17))
sketch11.addConstraint(Sketcher.Constraint("Vertical", 18))
sketch11.addConstraint(Sketcher.Constraint("Horizontal", 19))
sketch11.addConstraint(Sketcher.Constraint("Vertical", 20))
sketch11.addConstraint(Sketcher.Constraint("Horizontal", 21))
sketch11.addConstraint(Sketcher.Constraint("Vertical", 22))
sketch11.addConstraint(Sketcher.Constraint("Horizontal", 23))
sketch11.addConstraint(Sketcher.Constraint("Vertical", 24))
sketch11.addConstraint(Sketcher.Constraint("Horizontal", 25))
sketch11.addConstraint(Sketcher.Constraint("Vertical", 26))
sketch11.addConstraint(Sketcher.Constraint("Horizontal", 27))
sketch11.addConstraint(Sketcher.Constraint("Vertical", 28))
sketch11.addConstraint(Sketcher.Constraint("Horizontal", 29))
sketch11.addConstraint(Sketcher.Constraint("Vertical", 30))
sketch11.addConstraint(Sketcher.Constraint("Horizontal", 31))
sketch11.addConstraint(Sketcher.Constraint("Vertical", 32))
sketch11.addConstraint(Sketcher.Constraint("Horizontal", 33))
sketch11.addConstraint(Sketcher.Constraint("Vertical", 34))
sketch11.addConstraint(Sketcher.Constraint("Horizontal", 35))
sketch11.addConstraint(Sketcher.Constraint("Vertical", 36))
sketch11.addConstraint(Sketcher.Constraint("Horizontal", 37))
sketch11.addConstraint(Sketcher.Constraint("Vertical", 38))
sketch11.addConstraint(Sketcher.Constraint("Horizontal", 39))
sketch11.addConstraint(Sketcher.Constraint("Symmetric", 21, 2, 24, 2, -2))
sketch11.addConstraint(Sketcher.Constraint("Symmetric", 23, 2, 26, 2, -2))
sketch11.addConstraint(Sketcher.Constraint("Symmetric", 17, 2, 28, 2, -2))
sketch11.addConstraint(Sketcher.Constraint("Symmetric", 19, 2, 30, 2, -2))
sketch11.addConstraint(Sketcher.Constraint("Symmetric", 13, 2, 32, 2, -2))
sketch11.addConstraint(Sketcher.Constraint("Symmetric", 15, 2, 34, 2, -2))
sketch11.addConstraint(Sketcher.Constraint("Symmetric", 9, 2, 36, 2, -2))
sketch11.addConstraint(Sketcher.Constraint("Symmetric", 11, 2, 38, 2, -2))
sketch11.addConstraint(Sketcher.Constraint("Symmetric", 5, 2, 40, 2, -2))
sketch11.addConstraint(Sketcher.Constraint("Symmetric", 4, 2, 41, 2, -2))
sketch11.addConstraint(Sketcher.Constraint("Symmetric", 7, 2, 42, 2, -2))
sketch11.addConstraint(Sketcher.Constraint("Symmetric", 6, 2, 43, 2, -2))
sketch11.addConstraint(Sketcher.Constraint("Symmetric", 1, 2, 44, 2, -2))
sketch11.addConstraint(Sketcher.Constraint("Symmetric", 0, 2, 45, 2, -2))
sketch11.addConstraint(Sketcher.Constraint("Symmetric", 3, 2, 46, 2, -2))
sketch11.addConstraint(Sketcher.Constraint("Symmetric", 2, 2, 47, 2, -2))
sketch11.addConstraint(Sketcher.Constraint("Perpendicular", 0, 1))
sketch11.addConstraint(Sketcher.Constraint("Perpendicular", 1, 2))
sketch11.addConstraint(Sketcher.Constraint("Perpendicular", 2, 3))
sketch11.addConstraint(Sketcher.Constraint("Perpendicular", 3, 4))
sketch11.addConstraint(Sketcher.Constraint("Perpendicular", 4, 5))
sketch11.addConstraint(Sketcher.Constraint("Perpendicular", 5, 6))
sketch11.addConstraint(Sketcher.Constraint("Perpendicular", 6, 7))
sketch11.addConstraint(Sketcher.Constraint("Vertical", 11, 2, 12, 2))
sketch11.addConstraint(Sketcher.Constraint("Vertical", 10, 2, 13, 2))
sketch11.addConstraint(Sketcher.Constraint("Vertical", 15, 2, 16, 2))
sketch11.addConstraint(Sketcher.Constraint("Vertical", 14, 2, 17, 2))
sketch11.addConstraint(Sketcher.Constraint("Equal", 10, 12))
sketch11.addConstraint(Sketcher.Constraint("Equal", 39, 20))
sketch11.addConstraint(Sketcher.Constraint("Equal", 2, 4))
sketch11.addConstraint(Sketcher.Constraint("Equal", 3, 5))
sketch11.addConstraint(Sketcher.Constraint("DistanceX", 9, 1, 9, 2, 5.0))
sketch11.addConstraint(Sketcher.Constraint("Distance", 0, 5.0))
sketch11.addConstraint(Sketcher.Constraint("DistanceX", 21, 1, 21, 2, 40.4))
sketch11.addConstraint(Sketcher.Constraint("DistanceY", 8, 2, 8, 1, 10.4))
sketch11.addConstraint(Sketcher.Constraint("DistanceY", 16, 2, 16, 1, 35.4))
sketch11.addConstraint(Sketcher.Constraint("DistanceX", 8, 2, -1, 1, 120.0))
sketch11.addConstraint(Sketcher.Constraint("DistanceY", -1, 1, 20, 2, 100.0))
sketch11.addConstraint(Sketcher.Constraint("DistanceY", 12, 2, 8, 2, 20.0))
sketch11.addConstraint(Sketcher.Constraint("DistanceY", 16, 2, 12, 2, 60.0))
sketch11.addConstraint(Sketcher.Constraint("DistanceX", 20, 2, 24, 2, 90.0))
sketch11.addConstraint(Sketcher.Constraint("Distance", 1, 5.4))
sketch11.addConstraint(Sketcher.Constraint("DistanceX", 0, 2, -1, 1, 100.629532))
sketch11.addConstraint(Sketcher.Constraint("DistanceX", 3, 2, -1, 1, 104.725692))
sketch11.addConstraint(Sketcher.Constraint("DistanceX", 4, 2, -1, 1, 112.098779))
sketch11.addConstraint(Sketcher.Constraint("DistanceY", -1, 1, 6, 2, 83.179559))
sketch11.addConstraint(Sketcher.Constraint("DistanceY", 4, 2, 0, 2, 16.384638))
sketch11.addConstraint(Sketcher.Constraint("DistanceY", 8, 2, 0, 2, 30.813081))
sketch11.setExpression("Constraints[111]", "Params.sketch11_width")
sketch11.setExpression("Constraints[112]", "Params.sketch11_length")
sketch11.setExpression("Constraints[113]", "Params.sketch11_width2")
sketch11.setExpression("Constraints[114]", "Params.sketch11_height")
sketch11.setExpression("Constraints[115]", "Params.sketch11_height2")
pocket6 = body.newObject("PartDesign::Pocket", "Pocket005")
pocket6.Profile = sketch11
pocket6.setExpression("Length", "Params.pocket6_length")

doc.recompute()
